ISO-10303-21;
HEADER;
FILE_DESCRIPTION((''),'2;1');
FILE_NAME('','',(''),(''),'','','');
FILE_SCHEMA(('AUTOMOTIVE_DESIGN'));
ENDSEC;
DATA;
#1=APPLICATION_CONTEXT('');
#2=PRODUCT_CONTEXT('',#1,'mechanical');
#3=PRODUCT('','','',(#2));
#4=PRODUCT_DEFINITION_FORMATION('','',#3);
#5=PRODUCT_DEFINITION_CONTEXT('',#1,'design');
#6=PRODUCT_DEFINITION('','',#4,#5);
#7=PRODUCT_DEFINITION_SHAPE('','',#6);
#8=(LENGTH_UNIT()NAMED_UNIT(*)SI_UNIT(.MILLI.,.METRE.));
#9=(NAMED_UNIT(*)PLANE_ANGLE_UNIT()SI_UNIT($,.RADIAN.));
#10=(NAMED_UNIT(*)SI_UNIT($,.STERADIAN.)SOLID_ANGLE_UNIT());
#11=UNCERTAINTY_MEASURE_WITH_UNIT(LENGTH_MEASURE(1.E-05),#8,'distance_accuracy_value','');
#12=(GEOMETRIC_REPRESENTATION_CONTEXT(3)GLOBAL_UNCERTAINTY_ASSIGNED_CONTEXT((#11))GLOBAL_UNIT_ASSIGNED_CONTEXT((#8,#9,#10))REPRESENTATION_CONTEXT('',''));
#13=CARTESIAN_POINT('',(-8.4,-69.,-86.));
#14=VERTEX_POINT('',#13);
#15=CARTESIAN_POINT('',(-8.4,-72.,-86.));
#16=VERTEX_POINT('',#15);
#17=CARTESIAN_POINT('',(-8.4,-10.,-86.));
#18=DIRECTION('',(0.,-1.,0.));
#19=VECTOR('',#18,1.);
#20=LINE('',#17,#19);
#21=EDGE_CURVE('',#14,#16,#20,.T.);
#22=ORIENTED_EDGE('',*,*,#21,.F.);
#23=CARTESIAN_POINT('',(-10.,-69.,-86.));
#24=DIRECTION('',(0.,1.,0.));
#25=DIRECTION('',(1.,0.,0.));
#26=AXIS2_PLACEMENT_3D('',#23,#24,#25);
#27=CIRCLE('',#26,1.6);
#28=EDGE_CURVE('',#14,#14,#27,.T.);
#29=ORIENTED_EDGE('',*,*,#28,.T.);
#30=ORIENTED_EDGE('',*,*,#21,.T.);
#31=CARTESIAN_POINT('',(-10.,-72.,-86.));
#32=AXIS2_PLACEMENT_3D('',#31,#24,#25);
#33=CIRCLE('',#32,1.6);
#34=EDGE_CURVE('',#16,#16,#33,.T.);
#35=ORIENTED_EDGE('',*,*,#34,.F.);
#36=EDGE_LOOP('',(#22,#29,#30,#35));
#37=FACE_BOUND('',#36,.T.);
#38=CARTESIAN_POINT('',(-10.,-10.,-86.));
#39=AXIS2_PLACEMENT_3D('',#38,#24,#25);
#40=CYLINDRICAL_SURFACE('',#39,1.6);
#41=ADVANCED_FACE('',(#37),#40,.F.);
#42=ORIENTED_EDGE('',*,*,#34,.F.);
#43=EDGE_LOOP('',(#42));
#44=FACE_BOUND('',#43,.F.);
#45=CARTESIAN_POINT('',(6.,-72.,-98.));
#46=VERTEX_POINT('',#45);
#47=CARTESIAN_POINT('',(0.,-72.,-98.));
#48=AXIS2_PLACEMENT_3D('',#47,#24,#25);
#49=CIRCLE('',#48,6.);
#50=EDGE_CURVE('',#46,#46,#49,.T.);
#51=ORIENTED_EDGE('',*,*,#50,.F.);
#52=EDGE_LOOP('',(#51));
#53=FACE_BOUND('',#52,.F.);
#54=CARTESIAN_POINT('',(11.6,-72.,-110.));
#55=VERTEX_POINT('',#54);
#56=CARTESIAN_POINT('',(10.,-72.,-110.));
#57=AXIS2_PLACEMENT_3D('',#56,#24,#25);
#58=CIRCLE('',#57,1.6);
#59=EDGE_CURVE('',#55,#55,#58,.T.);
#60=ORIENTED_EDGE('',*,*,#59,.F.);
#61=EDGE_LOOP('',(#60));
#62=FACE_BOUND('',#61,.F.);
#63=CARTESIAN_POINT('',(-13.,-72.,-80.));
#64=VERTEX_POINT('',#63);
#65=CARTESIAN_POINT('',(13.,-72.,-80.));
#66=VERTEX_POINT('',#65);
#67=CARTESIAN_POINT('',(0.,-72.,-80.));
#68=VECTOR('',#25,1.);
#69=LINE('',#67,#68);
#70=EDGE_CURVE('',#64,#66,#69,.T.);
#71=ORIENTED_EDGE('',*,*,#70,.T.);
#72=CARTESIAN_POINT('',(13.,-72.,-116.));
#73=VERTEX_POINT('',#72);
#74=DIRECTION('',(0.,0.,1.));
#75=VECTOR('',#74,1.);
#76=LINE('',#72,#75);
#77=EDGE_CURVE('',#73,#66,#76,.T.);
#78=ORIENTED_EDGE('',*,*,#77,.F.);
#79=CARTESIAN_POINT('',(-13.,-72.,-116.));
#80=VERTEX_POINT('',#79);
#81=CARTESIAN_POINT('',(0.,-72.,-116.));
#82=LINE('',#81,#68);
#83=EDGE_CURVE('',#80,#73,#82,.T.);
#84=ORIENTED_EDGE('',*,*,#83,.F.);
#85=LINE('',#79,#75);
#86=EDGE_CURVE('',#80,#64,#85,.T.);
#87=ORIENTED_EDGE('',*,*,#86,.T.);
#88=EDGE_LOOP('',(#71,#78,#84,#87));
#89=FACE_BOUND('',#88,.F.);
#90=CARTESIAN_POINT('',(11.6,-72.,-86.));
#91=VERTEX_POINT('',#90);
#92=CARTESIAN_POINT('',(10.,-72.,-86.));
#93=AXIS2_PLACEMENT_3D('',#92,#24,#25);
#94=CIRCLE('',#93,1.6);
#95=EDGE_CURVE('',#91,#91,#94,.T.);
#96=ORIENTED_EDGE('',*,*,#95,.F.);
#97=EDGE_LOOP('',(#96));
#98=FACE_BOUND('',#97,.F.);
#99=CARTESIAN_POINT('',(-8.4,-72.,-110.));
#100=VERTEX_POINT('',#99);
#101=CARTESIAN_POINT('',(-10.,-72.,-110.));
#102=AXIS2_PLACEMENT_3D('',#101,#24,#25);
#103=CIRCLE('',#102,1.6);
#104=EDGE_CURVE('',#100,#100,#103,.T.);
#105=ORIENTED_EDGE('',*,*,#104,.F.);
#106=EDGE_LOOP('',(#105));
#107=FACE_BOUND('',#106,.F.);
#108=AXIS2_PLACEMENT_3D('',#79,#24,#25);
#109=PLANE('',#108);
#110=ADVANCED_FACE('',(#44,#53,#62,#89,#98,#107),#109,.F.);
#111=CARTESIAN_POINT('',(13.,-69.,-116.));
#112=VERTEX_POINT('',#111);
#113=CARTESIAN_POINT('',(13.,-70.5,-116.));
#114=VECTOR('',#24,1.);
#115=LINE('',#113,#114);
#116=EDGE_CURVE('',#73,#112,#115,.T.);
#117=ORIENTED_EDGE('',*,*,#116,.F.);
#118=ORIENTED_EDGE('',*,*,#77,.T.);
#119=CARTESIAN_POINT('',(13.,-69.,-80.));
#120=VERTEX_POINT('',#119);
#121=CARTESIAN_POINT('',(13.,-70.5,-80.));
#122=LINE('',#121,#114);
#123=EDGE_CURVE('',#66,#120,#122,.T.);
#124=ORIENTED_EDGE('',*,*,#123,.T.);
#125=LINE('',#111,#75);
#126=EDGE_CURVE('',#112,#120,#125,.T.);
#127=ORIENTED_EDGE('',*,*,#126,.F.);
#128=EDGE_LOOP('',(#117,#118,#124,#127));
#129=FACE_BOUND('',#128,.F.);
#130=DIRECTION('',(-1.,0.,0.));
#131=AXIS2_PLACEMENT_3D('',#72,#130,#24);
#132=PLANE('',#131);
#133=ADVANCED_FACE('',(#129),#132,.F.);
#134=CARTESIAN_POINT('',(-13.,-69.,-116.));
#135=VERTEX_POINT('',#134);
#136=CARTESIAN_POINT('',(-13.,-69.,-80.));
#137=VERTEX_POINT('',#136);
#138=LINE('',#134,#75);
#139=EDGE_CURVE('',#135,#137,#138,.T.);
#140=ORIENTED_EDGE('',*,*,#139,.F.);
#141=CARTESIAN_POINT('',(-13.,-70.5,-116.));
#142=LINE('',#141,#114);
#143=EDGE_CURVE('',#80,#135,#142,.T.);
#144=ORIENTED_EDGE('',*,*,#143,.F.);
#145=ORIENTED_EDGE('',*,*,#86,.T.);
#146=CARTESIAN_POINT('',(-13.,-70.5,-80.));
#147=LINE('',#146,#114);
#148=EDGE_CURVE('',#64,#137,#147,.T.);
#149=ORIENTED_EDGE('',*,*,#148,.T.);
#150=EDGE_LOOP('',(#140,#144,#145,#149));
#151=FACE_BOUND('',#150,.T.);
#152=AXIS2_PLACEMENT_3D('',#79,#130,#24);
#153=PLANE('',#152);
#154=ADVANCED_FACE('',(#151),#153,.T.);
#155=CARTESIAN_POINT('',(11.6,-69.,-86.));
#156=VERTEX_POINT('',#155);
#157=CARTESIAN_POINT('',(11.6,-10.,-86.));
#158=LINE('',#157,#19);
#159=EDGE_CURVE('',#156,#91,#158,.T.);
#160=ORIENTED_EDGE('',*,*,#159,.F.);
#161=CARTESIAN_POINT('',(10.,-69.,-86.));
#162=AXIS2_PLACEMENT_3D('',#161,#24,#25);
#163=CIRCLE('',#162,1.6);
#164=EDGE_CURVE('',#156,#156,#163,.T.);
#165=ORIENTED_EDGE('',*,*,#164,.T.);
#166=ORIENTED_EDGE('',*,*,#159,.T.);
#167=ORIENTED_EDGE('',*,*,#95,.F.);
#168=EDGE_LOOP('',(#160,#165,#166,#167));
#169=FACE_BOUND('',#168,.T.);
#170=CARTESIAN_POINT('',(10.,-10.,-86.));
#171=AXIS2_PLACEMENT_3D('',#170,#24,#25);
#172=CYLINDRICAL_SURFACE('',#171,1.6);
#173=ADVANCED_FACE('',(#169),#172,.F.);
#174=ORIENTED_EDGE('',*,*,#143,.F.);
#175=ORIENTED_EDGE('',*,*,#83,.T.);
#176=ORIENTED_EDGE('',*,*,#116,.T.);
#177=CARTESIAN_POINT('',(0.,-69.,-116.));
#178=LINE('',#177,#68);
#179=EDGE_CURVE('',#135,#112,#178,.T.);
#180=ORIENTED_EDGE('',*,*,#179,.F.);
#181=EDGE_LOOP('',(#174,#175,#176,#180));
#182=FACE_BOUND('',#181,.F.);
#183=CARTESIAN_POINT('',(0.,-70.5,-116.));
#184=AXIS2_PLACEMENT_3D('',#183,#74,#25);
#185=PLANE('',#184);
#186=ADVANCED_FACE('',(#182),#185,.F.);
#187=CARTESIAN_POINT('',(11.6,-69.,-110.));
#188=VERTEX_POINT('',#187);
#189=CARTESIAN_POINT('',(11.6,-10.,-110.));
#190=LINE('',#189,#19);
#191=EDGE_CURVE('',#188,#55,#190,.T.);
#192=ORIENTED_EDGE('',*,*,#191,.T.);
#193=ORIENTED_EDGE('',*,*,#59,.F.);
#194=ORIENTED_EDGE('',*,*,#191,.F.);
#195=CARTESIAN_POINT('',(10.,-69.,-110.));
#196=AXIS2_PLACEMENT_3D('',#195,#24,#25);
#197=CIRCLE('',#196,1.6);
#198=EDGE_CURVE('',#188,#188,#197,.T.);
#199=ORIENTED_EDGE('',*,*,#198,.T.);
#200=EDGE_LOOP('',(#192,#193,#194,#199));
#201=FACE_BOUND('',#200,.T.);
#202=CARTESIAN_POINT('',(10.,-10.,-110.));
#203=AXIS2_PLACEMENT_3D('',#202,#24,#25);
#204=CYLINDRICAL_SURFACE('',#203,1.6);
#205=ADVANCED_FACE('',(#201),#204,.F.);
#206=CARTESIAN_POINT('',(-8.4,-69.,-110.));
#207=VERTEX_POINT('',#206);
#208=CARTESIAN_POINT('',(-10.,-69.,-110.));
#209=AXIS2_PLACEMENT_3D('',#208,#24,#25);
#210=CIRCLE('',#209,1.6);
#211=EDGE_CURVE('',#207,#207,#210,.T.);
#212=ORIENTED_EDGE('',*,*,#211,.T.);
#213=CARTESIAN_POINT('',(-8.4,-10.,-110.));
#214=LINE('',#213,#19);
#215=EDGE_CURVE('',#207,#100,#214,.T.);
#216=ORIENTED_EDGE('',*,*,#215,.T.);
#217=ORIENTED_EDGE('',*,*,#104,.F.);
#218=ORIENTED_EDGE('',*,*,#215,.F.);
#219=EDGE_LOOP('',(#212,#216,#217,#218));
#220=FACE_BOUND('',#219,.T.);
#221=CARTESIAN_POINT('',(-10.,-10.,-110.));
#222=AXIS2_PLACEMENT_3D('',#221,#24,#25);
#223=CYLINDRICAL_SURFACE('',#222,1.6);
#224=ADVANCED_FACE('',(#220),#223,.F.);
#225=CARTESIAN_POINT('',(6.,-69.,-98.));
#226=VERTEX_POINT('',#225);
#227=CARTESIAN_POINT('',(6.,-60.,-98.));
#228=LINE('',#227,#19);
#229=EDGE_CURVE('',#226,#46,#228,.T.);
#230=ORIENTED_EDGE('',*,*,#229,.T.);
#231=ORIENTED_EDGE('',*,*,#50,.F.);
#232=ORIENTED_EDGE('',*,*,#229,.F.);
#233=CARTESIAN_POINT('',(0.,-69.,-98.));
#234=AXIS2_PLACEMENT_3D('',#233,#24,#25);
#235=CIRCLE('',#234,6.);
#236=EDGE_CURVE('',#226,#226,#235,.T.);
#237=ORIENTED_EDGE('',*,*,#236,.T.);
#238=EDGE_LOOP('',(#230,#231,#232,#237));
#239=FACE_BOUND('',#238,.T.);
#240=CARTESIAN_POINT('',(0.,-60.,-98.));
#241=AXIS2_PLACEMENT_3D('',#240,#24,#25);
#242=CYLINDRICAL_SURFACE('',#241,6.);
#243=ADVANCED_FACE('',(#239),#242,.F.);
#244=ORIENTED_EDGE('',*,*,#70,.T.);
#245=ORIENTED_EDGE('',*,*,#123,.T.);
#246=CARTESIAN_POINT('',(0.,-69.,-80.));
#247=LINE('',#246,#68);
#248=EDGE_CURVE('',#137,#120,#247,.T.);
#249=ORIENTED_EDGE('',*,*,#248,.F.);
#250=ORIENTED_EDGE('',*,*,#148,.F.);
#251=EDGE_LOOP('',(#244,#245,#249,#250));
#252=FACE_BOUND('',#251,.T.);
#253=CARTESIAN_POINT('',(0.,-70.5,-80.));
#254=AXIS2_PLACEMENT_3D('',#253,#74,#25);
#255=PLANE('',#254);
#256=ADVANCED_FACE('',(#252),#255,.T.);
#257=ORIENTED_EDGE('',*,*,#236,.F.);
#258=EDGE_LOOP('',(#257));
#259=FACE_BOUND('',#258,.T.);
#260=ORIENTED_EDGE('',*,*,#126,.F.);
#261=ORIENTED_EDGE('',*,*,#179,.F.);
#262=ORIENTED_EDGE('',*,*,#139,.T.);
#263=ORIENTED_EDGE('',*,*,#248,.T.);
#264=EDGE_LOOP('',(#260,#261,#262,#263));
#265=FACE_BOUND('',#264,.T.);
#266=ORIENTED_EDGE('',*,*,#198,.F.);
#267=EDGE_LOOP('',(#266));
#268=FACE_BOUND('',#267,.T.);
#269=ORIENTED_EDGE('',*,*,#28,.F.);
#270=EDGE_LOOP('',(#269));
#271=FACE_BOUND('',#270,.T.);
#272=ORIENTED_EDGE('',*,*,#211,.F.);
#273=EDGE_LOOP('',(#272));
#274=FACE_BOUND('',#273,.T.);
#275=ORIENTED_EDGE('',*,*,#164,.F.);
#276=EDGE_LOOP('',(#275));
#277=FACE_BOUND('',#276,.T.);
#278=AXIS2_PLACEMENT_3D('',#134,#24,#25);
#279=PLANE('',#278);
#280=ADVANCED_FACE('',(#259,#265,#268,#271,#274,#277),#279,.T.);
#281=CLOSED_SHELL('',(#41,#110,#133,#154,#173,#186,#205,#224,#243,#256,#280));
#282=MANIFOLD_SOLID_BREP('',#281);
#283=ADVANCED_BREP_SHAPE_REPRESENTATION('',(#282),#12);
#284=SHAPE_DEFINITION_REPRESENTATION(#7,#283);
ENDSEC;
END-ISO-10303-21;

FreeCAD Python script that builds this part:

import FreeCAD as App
import Part
import Sketcher
from FreeCAD import Vector


def add_polygon(sketch, points):
    """Adds a closed chain of lines whose ends are joined by coincident constraints."""
    first, n = sketch.GeometryCount, len(points)
    for a, b in zip(points, points[1:] + points[:1]):
        sketch.addGeometry(Part.LineSegment(App.Vector(*a, 0), App.Vector(*b, 0)), False)
    for i in range(n):
        sketch.addConstraint(Sketcher.Constraint("Coincident", first + i, 2, first + (i + 1) % n, 1))

doc = App.newDocument("Part")
body = doc.addObject("PartDesign::Body", "Body")

sketch1 = body.newObject("Sketcher::SketchObject", "Sketch")
sketch1.AttachmentSupport = (doc.getObject("XZ_Plane"), [""])
sketch1.MapMode = "FlatFace"
sketch1.AttachmentOffset = App.Placement(Vector(0, 0, -80), App.Rotation())
sketch1.addGeometry(Part.Circle(Vector(-10, 31, 0), Vector(0, 0, 1), 1.6), False)
sketch1.addConstraint([
    Sketcher.Constraint("Diameter", 0, 3.2),
    Sketcher.Constraint("DistanceX", 0, 3, -1, 1, 10.0),
    Sketcher.Constraint("DistanceY", -1, 1, 0, 3, 31.0),
])
pad1 = body.newObject("PartDesign::Pad", "Pad")
pad1.Profile = sketch1
pad1.Length = 80
body2 = doc.addObject("PartDesign::Body", "Body001")

sketch2 = body2.newObject("Sketcher::SketchObject", "Sketch001")
sketch2.AttachmentSupport = (doc.getObject("XZ_Plane001"), [""])
sketch2.MapMode = "FlatFace"
sketch2.AttachmentOffset = App.Placement(Vector(0, 0, -80), App.Rotation())
sketch2.addGeometry(Part.Circle(Vector(10, 55, 0), Vector(0, 0, 1), 1.6), False)
sketch2.addConstraint([
    Sketcher.Constraint("Diameter", 0, 3.2),
    Sketcher.Constraint("DistanceX", -1, 1, 0, 3, 10.0),
    Sketcher.Constraint("DistanceY", -1, 1, 0, 3, 55.0),
])
pad2 = body2.newObject("PartDesign::Pad", "Pad001")
pad2.Profile = sketch2
pad2.Length = 80
body3 = doc.addObject("PartDesign::Body", "Body002")

sketch3 = body3.newObject("Sketcher::SketchObject", "Sketch002")
sketch3.AttachmentSupport = (doc.getObject("XZ_Plane002"), [""])
sketch3.MapMode = "FlatFace"
sketch3.AttachmentOffset = App.Placement(Vector(0, 0, -80), App.Rotation())
sketch3.addGeometry(Part.Circle(Vector(10, 31, 0), Vector(0, 0, 1), 1.6), False)
sketch3.addConstraint([
    Sketcher.Constraint("Diameter", 0, 3.2),
    Sketcher.Constraint("DistanceX", -1, 1, 0, 3, 10.0),
    Sketcher.Constraint("DistanceY", -1, 1, 0, 3, 31.0),
])
pad3 = body3.newObject("PartDesign::Pad", "Pad002")
pad3.Profile = sketch3
pad3.Length = 80
body4 = doc.addObject("PartDesign::Body", "Body003")
body4.AllowCompound = True

sketch4 = body4.newObject("Sketcher::SketchObject", "Sketch003")
sketch4.AttachmentSupport = (doc.getObject("XZ_Plane003"), [""])
sketch4.MapMode = "FlatFace"
sketch4.AttachmentOffset = App.Placement(Vector(0, 0, -80), App.Rotation())
sketch4.addGeometry(Part.Circle(Vector(-10, 55, 0), Vector(0, 0, 1), 1.6), False)
sketch4.addConstraint([
    Sketcher.Constraint("Diameter", 0, 3.2),
    Sketcher.Constraint("DistanceX", 0, 3, -1, 1, 10.0),
    Sketcher.Constraint("DistanceY", -1, 1, 0, 3, 55.0),
])
pad4 = body4.newObject("PartDesign::Pad", "Pad003")
pad4.Profile = sketch4
pad4.Length = 80
doc.recompute()

boolean = body4.newObject("PartDesign::Boolean", "Boolean")
boolean.Type = "Fuse"
boolean.addObjects([body])
doc.recompute()

boolean2 = body4.newObject("PartDesign::Boolean", "Boolean001")
boolean2.Type = "Fuse"
boolean2.addObjects([body2])
doc.recompute()

boolean3 = body4.newObject("PartDesign::Boolean", "Boolean002")
boolean3.Type = "Fuse"
boolean3.addObjects([body3])
body5 = doc.addObject("PartDesign::Body", "Body004")
body5.AllowCompound = True
doc.recompute()

body4.Placement = App.Placement(Vector(0, -90, -141), App.Rotation(Vector(0, 0, 1), 0))
boolean4 = body5.newObject("PartDesign::Boolean", "Boolean003")
boolean4.Type = "Fuse"
boolean4.addObjects([body4])
body6 = doc.addObject("PartDesign::Body", "Body005")

sketch5 = body6.newObject("Sketcher::SketchObject", "Sketch004")
sketch5.AttachmentSupport = (doc.getObject("XZ_Plane005"), [""])
sketch5.MapMode = "FlatFace"
sketch5.AttachmentOffset = App.Placement(Vector(0, 0, 60), App.Rotation())
sketch5.addGeometry(Part.Circle(Vector(0, -98, 0), Vector(0, 0, 1), 6), False)
sketch5.addConstraint([
    Sketcher.Constraint("PointOnObject", 0, 3, -2),
    Sketcher.Constraint("Diameter", 0, 12.0),
    Sketcher.Constraint("DistanceY", 0, 3, -1, 1, 98.0),
])
pad5 = body6.newObject("PartDesign::Pad", "Pad004")
pad5.Profile = sketch5
pad5.Length = 20
body7 = doc.addObject("PartDesign::Body", "Body006")

sketch6 = body7.newObject("Sketcher::SketchObject", "Sketch005")
sketch6.AttachmentSupport = (doc.getObject("XY_Plane006"), [""])
sketch6.MapMode = "FlatFace"
sketch6.AttachmentOffset = App.Placement(Vector(0, 0, -116), App.Rotation())
add_polygon(sketch6, [(-13, -69), (-13, -72), (13, -72), (13, -69)])
sketch6.addConstraint([
    Sketcher.Constraint("Vertical", 0),
    Sketcher.Constraint("Horizontal", 1),
    Sketcher.Constraint("Vertical", 2),
    Sketcher.Constraint("Horizontal", 3),
    Sketcher.Constraint("DistanceX", 1, 1, 1, 2, 26.0),
    Sketcher.Constraint("DistanceY", 0, 2, 0, 1, 3.0),
    Sketcher.Constraint("DistanceX", 0, 2, -1, 1, 13.0),
    Sketcher.Constraint("DistanceY", 0, 2, -1, 1, 72.0),
])
pad6 = body7.newObject("PartDesign::Pad", "Pad005")
pad6.Profile = sketch6
pad6.Length = 36
doc.recompute()

boolean5 = body7.newObject("PartDesign::Boolean", "Boolean004")
boolean5.Type = "Cut"
boolean5.addObjects([body6])
doc.recompute()

boolean6 = body7.newObject("PartDesign::Boolean", "Boolean005")
boolean6.Type = "Cut"
boolean6.addObjects([body5])

doc.recompute()
